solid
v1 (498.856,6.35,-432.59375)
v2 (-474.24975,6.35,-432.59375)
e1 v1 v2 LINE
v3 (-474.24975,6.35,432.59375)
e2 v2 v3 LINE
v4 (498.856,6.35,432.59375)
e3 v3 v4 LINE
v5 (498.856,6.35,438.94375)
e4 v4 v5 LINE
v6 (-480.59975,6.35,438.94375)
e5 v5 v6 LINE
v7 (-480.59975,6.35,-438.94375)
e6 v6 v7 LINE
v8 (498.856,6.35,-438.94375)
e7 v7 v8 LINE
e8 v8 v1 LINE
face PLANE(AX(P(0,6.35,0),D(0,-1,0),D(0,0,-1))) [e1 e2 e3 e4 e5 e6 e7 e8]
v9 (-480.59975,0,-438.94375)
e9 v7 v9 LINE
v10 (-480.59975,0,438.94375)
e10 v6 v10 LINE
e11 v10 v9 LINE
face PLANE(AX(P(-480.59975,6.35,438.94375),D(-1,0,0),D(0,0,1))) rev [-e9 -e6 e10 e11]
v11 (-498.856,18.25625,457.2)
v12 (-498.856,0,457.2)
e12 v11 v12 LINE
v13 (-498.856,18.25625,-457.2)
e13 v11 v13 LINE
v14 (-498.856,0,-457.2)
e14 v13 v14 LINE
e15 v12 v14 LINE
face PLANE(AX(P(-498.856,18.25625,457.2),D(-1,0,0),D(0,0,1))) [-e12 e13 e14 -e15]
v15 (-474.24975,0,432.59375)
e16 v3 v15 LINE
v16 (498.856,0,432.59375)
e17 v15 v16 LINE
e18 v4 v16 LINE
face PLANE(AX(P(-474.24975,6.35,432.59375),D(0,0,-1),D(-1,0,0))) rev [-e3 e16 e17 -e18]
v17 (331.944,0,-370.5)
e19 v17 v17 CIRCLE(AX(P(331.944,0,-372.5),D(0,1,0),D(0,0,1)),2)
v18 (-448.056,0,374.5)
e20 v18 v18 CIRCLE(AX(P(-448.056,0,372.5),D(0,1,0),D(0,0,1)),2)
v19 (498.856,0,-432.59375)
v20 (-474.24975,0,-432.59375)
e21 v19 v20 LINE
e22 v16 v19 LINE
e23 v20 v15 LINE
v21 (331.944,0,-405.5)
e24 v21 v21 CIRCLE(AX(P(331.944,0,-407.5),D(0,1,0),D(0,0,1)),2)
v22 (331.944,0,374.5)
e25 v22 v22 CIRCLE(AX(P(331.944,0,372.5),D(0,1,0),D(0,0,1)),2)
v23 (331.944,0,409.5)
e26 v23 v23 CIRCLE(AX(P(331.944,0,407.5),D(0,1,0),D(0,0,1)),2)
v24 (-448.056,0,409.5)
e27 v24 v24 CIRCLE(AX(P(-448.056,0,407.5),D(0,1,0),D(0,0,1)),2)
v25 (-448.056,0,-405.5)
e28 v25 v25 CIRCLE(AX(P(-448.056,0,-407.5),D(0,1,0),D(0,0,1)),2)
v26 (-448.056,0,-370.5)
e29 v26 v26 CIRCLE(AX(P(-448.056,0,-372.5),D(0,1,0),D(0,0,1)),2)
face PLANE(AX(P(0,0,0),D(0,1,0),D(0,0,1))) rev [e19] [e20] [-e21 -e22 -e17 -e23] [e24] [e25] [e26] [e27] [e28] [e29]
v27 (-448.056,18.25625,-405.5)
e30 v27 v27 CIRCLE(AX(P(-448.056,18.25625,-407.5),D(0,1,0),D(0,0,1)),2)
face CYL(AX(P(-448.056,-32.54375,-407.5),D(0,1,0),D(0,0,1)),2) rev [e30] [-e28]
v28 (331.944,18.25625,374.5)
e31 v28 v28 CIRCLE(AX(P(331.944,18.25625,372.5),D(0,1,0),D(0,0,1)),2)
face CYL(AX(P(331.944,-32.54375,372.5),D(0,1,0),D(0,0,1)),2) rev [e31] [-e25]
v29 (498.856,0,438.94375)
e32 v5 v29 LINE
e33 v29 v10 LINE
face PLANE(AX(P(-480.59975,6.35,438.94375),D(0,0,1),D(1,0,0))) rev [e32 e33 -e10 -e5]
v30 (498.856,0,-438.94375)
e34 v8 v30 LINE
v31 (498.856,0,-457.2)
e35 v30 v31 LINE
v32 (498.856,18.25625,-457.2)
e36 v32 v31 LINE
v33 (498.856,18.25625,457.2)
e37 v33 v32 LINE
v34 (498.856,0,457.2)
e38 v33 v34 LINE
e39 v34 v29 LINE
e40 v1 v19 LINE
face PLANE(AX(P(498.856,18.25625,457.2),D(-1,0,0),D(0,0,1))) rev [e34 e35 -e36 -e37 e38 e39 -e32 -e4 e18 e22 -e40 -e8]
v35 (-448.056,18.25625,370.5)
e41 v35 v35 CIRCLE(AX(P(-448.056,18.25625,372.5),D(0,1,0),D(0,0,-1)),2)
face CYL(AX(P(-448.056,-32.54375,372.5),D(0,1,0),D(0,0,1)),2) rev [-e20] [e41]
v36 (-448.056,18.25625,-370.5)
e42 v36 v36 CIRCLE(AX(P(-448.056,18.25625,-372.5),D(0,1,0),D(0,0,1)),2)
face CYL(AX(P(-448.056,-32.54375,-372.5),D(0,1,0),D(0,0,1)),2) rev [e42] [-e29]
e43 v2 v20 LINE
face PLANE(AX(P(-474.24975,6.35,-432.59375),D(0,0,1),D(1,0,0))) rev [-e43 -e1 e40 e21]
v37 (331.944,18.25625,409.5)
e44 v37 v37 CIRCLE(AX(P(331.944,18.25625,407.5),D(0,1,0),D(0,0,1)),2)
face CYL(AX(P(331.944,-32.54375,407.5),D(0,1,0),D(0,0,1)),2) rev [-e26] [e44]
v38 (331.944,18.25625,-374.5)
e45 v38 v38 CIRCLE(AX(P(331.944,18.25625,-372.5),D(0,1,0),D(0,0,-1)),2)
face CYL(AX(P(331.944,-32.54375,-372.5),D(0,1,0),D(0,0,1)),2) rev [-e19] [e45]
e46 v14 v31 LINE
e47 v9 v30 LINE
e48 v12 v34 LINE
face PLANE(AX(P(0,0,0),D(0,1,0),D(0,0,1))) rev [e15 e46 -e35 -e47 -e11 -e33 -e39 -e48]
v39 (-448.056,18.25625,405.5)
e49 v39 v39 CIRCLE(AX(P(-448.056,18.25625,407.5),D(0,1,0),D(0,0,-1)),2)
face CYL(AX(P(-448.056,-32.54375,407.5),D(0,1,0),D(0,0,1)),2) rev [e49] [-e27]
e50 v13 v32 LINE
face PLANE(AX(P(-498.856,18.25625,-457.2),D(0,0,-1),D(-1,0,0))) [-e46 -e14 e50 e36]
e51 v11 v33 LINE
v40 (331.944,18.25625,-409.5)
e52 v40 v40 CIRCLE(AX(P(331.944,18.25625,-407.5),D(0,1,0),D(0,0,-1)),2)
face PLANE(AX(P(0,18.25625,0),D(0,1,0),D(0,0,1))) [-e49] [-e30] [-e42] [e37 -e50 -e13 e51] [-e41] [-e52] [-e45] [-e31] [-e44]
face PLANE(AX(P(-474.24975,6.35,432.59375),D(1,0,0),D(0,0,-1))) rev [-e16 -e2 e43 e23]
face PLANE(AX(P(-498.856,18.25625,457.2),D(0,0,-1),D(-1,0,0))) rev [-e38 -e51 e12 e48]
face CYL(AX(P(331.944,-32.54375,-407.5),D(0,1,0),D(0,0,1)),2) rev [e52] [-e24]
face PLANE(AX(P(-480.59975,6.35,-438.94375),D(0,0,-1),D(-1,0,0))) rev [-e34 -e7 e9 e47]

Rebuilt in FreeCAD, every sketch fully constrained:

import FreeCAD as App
import Part
import Sketcher
Q = App.Units.Quantity


def add_polygon(sketch, points):
    """Adds a closed chain of lines whose ends are joined by coincident constraints."""
    first, n = sketch.GeometryCount, len(points)
    for a, b in zip(points, points[1:] + points[:1]):
        sketch.addGeometry(Part.LineSegment(App.Vector(*a, 0), App.Vector(*b, 0)), False)
    for i in range(n):
        sketch.addConstraint(Sketcher.Constraint("Coincident", first + i, 2, first + (i + 1) % n, 1))

doc = App.newDocument("Part")
body = doc.addObject("PartDesign::Body", "Body")

sketch1 = doc.addObject("Sketcher::SketchObject", "Sketch")
body.addObject(sketch1)
sketch1.AttachmentSupport = (doc.XZ_Plane, [""])
sketch1.MapMode = "FlatFace"
add_polygon(sketch1, [(-499, -457), (-499, 457), (499, 457), (499, -457)])
sketch1.addConstraint([
    Sketcher.Constraint("Vertical", 0),
    Sketcher.Constraint("Horizontal", 1),
    Sketcher.Constraint("Vertical", 2),
    Sketcher.Constraint("Horizontal", 3),
    Sketcher.Constraint("Symmetric", 0, 2, 2, 2, -1, 1),
    Sketcher.Constraint("DistanceY", 0, 1, 0, 2, Q("36 in")),
    Sketcher.Constraint("DistanceX", 1, 1, 1, 2, Q("39.28 in")),
])
pad1 = doc.addObject("PartDesign::Pad", "Pad")
body.addObject(pad1)
pad1.Profile = sketch1
pad1.Length = Q("0.71875 in")
pad1.Reversed = True

sketch2 = doc.addObject("Sketcher::SketchObject", "Sketch001")
body.addObject(sketch2)
sketch2.AttachmentSupport = (doc.XZ_Plane, [""])
sketch2.MapMode = "FlatFace"
sketch2.AttachmentOffset = App.Placement(App.Vector(0, 0, -0.71875 * 25.4), App.Rotation())
sketch2.addGeometry([
    Part.Circle(App.Vector(-448.1, -407.5, 0), App.Vector(0, 0, 1), 2),
    Part.Circle(App.Vector(-448.1, -372.5, 0), App.Vector(0, 0, 1), 2),
    Part.Circle(App.Vector(331.9, -372.5, 0), App.Vector(0, 0, 1), 2),
    Part.Circle(App.Vector(331.9, -407.5, 0), App.Vector(0, 0, 1), 2),
    Part.Circle(App.Vector(-448.1, 372.5, 0), App.Vector(0, 0, 1), 2),
    Part.Circle(App.Vector(-448.1, 407.5, 0), App.Vector(0, 0, 1), 2),
    Part.Circle(App.Vector(331.9, 372.5, 0), App.Vector(0, 0, 1), 2),
    Part.Circle(App.Vector(331.9, 407.5, 0), App.Vector(0, 0, 1), 2),
], False)
sketch2.addConstraint([
    Sketcher.Constraint("Equal", 0, 1),
    Sketcher.Constraint("Equal", 1, 2),
    Sketcher.Constraint("Equal", 2, 3),
    Sketcher.Constraint("Equal", 3, 4),
    Sketcher.Constraint("Equal", 4, 5),
    Sketcher.Constraint("Equal", 5, 6),
    Sketcher.Constraint("Equal", 6, 7),
    Sketcher.Constraint("Symmetric", 1, 3, 4, 3, -1),
    Sketcher.Constraint("Symmetric", 0, 3, 5, 3, -1),
    Sketcher.Constraint("Symmetric", 2, 3, 6, 3, -1),
    Sketcher.Constraint("Symmetric", 3, 3, 7, 3, -1),
    Sketcher.Constraint("Horizontal", 1, 3, 2, 3),
    Sketcher.Constraint("Horizontal", 0, 3, 3, 3),
    Sketcher.Constraint("Vertical", 0, 3, 1, 3),
    Sketcher.Constraint("Vertical", 2, 3, 3, 3),
    Sketcher.Constraint("Diameter", 0, 4.0),
    Sketcher.Constraint("DistanceX", 0, 3, -1, 1, Q("17.64 in")),
    Sketcher.Constraint("DistanceY", 0, 3, -1, 1, 407.5),
    Sketcher.Constraint("DistanceY", 1, 3, -1, 1, 372.5),
    Sketcher.Constraint("DistanceX", -1, 1, 2, 3, 331.944),
])
pocket1 = doc.addObject("PartDesign::Pocket", "Pocket")
body.addObject(pocket1)
pocket1.Profile = sketch2
pocket1.Length = Q("2 in")
pocket1.Reversed = True

sketch3 = doc.addObject("Sketcher::SketchObject", "Sketch002")
body.addObject(sketch3)
sketch3.AttachmentSupport = (doc.XZ_Plane, [""])
sketch3.MapMode = "FlatFace"
add_polygon(sketch3, [(-481, -439), (499, -439), (499, -433), (-474, -433), (-474, 433), (499, 433), (499, 439), (-481, 439)])
sketch3.addConstraint([
    Sketcher.Constraint("Horizontal", 0),
    Sketcher.Constraint("Vertical", 1),
    Sketcher.Constraint("Horizontal", 2),
    Sketcher.Constraint("Vertical", 3),
    Sketcher.Constraint("Horizontal", 4),
    Sketcher.Constraint("Vertical", 5),
    Sketcher.Constraint("Horizontal", 6),
    Sketcher.Constraint("Vertical", 7),
    Sketcher.Constraint("Symmetric", 1, 2, 4, 2, -1),
    Sketcher.Constraint("Equal", 1, 5),
    Sketcher.Constraint("DistanceY", 1, 1, 1, 2, Q("0.25 in")),
    Sketcher.Constraint("DistanceY", 3, 1, 3, 2, Q("34.0625 in")),
    Sketcher.Constraint("DistanceX", -1, 1, 0, 2, Q("19.64 in")),
    Sketcher.Constraint("DistanceX", 6, 2, 3, 2, Q("0.25 in")),
    Sketcher.Constraint("DistanceX", 0, 1, 0, 2, 979.45575),
])
pocket2 = doc.addObject("PartDesign::Pocket", "Pocket001")
body.addObject(pocket2)
pocket2.Profile = sketch3
pocket2.Length = Q("0.25 in")

doc.recompute()
